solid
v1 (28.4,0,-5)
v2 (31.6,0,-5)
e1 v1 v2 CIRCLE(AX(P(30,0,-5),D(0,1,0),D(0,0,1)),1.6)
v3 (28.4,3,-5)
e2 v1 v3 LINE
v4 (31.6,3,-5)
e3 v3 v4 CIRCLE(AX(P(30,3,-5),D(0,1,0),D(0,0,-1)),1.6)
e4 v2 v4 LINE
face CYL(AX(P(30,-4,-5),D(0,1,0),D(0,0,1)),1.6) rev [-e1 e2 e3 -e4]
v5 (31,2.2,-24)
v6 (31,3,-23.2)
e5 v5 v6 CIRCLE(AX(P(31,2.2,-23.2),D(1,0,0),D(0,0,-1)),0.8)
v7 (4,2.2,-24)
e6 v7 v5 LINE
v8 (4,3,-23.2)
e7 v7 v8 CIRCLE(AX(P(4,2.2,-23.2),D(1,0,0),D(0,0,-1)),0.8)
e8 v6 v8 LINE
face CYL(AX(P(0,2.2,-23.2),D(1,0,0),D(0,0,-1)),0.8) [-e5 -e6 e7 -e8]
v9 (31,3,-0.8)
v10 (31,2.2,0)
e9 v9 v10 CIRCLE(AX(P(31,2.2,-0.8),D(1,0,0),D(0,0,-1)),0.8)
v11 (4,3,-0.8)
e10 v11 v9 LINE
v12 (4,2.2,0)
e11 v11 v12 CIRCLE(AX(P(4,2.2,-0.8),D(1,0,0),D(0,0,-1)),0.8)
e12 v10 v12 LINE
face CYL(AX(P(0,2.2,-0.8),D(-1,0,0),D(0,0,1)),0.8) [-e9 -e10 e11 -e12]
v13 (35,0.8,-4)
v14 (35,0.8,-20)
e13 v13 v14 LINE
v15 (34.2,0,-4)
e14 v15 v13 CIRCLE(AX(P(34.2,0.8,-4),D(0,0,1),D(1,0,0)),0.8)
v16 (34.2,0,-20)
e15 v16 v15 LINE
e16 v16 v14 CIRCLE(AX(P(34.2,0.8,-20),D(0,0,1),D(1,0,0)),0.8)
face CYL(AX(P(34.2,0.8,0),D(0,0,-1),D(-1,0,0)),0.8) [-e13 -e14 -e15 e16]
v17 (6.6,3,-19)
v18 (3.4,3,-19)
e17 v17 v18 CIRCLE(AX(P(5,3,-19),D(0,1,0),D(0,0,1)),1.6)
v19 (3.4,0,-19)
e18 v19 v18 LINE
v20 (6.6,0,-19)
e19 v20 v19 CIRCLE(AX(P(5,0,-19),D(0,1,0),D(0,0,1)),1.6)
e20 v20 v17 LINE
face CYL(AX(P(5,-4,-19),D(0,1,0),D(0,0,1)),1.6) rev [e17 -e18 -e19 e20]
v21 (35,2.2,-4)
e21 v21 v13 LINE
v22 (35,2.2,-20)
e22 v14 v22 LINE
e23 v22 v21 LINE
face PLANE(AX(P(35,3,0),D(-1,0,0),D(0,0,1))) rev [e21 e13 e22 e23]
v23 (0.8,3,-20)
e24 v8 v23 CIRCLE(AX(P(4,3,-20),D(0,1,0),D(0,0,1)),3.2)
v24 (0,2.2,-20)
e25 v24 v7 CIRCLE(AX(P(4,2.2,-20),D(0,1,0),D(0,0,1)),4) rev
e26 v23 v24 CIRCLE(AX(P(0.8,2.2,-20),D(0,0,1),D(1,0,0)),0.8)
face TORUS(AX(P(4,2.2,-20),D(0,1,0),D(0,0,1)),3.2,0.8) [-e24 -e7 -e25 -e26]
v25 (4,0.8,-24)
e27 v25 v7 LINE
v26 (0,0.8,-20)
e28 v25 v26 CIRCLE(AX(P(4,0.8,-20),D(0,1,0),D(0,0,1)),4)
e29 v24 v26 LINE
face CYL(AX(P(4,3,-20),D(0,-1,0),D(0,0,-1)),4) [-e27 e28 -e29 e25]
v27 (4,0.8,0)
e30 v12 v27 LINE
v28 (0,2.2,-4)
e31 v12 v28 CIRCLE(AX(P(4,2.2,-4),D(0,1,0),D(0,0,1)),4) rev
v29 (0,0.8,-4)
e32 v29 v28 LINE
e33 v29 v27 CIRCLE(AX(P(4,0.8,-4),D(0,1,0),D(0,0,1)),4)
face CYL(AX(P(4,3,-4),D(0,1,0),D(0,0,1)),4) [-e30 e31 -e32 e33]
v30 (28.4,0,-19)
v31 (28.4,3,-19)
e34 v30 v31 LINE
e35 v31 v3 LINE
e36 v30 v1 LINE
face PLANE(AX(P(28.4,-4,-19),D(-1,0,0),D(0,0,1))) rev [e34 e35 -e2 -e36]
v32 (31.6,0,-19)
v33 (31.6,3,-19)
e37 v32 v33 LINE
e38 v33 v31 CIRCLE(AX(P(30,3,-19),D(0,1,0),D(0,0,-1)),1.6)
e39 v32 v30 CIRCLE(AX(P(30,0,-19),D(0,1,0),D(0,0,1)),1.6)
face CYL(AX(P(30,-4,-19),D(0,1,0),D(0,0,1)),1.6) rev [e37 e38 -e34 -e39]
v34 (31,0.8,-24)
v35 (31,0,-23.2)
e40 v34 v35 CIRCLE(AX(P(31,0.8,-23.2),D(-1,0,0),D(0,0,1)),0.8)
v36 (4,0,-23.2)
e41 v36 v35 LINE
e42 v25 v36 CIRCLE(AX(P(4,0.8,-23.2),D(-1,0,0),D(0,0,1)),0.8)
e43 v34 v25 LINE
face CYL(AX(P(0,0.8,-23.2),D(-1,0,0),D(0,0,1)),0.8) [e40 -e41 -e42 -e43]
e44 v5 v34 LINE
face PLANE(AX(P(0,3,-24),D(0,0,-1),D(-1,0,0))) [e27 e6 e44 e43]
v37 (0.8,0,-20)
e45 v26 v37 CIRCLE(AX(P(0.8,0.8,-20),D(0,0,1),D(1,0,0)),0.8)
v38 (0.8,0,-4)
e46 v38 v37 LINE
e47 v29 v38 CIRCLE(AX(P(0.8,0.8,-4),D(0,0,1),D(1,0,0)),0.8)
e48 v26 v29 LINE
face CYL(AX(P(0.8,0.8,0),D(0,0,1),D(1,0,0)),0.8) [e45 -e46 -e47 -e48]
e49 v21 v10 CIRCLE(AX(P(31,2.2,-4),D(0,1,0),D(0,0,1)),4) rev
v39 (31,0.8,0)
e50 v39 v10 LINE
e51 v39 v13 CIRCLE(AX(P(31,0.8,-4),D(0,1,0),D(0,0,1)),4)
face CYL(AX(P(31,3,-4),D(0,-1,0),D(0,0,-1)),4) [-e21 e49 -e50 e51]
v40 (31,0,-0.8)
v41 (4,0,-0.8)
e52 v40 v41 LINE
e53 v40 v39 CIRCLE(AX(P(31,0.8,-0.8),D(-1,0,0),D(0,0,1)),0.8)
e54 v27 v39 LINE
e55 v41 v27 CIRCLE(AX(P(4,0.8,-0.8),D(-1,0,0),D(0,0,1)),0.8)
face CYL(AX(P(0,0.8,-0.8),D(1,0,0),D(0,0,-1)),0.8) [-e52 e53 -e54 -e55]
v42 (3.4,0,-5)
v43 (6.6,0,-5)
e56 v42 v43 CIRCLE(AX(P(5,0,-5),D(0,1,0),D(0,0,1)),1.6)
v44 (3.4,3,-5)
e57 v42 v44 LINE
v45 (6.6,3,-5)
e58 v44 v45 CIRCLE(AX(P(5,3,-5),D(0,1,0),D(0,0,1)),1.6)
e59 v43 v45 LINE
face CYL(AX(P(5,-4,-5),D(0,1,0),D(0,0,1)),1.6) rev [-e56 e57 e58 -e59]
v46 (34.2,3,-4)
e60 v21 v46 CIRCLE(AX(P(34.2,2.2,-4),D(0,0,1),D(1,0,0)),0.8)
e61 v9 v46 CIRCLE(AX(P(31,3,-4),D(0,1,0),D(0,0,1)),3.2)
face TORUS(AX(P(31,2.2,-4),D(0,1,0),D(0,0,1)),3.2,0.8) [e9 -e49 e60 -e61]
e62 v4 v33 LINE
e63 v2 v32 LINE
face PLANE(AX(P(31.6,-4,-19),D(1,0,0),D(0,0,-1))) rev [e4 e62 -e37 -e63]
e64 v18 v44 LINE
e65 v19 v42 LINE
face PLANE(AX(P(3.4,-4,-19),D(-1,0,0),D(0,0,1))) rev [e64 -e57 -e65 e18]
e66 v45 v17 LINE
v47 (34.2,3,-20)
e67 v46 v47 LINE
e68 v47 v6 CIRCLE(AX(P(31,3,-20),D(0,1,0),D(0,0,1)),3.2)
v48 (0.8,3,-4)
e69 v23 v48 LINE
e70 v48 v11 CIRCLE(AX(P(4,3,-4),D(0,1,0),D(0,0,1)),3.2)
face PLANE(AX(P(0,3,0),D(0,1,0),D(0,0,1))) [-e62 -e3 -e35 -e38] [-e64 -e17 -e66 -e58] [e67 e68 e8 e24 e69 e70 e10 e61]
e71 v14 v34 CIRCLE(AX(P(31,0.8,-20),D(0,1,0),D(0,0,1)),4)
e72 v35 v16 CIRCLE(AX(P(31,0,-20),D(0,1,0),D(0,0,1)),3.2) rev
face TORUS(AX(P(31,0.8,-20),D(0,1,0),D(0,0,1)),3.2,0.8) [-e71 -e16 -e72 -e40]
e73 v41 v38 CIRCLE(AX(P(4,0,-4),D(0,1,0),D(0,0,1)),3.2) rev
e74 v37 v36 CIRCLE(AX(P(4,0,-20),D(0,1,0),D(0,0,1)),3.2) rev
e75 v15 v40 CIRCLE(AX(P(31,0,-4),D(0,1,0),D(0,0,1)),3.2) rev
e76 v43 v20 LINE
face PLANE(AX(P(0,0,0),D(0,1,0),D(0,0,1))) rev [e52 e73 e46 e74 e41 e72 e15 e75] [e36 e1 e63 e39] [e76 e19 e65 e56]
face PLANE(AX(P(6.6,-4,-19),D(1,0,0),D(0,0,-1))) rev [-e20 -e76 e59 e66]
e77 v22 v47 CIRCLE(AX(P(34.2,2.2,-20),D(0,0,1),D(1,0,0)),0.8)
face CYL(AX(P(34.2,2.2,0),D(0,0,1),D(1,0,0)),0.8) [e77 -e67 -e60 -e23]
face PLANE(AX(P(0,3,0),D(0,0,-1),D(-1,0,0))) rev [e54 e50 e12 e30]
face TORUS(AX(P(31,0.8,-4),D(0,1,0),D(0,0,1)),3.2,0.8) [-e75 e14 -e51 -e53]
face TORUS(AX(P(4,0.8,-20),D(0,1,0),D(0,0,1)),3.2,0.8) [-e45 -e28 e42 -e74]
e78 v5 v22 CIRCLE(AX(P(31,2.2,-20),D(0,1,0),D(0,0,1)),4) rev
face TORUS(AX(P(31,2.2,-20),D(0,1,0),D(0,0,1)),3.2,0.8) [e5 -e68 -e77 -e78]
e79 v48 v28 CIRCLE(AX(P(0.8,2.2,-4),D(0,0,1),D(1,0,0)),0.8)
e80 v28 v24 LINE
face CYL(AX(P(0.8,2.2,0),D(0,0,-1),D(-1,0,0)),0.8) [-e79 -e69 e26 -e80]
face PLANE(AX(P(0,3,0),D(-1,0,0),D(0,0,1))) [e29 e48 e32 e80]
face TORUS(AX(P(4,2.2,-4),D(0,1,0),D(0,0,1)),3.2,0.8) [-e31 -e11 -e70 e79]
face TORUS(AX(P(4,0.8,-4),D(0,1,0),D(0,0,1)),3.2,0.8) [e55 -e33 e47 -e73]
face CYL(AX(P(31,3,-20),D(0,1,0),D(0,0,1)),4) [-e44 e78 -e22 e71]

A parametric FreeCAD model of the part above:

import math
import FreeCAD as App
import Part
import Sketcher

V = App.Vector


def edges_at(feature, points):
    """Names of the edges that pass closest to the given points."""
    edges = feature.Shape.Edges
    near = lambda p: min(range(len(edges)), key=lambda i: edges[i].distToShape(Part.Vertex(*p))[0])
    return sorted({f"Edge{near(p) + 1}" for p in points})

doc = App.newDocument("Part")
body = doc.addObject("PartDesign::Body", "Body")

# Sketch on XZ plane
sketch1 = body.newObject("Sketcher::SketchObject", "Sketch")
sketch1.AttachmentSupport = (doc.getObject("XZ_Plane"), [""])
sketch1.MapMode = "FlatFace"
sketch1.addGeometry([
    Part.LineSegment(V(0, -24, 0), V(0, 0, 0)),
    Part.LineSegment(V(0, 0, 0), V(35, 0, 0)),
    Part.LineSegment(V(35, 0, 0), V(35, -24, 0)),
    Part.LineSegment(V(35, -24, 0), V(0, -24, 0)),
], False)
sketch1.addConstraint([
    Sketcher.Constraint("Coincident", 0, 2, 1, 1),
    Sketcher.Constraint("Coincident", 1, 2, 2, 1),
    Sketcher.Constraint("Coincident", 2, 2, 3, 1),
    Sketcher.Constraint("Coincident", 3, 2, 0, 1),
    Sketcher.Constraint("Vertical", 0),
    Sketcher.Constraint("Horizontal", 1),
    Sketcher.Constraint("Vertical", 2),
    Sketcher.Constraint("Horizontal", 3),
    Sketcher.Constraint("Coincident", 0, 2, -1, 1),
    Sketcher.Constraint("DistanceX", 1, 1, 1, 2, 35.0),
    Sketcher.Constraint("DistanceY", 0, 1, 0, 2, 24.0),
])
pad1 = body.newObject("PartDesign::Pad", "Pad")
pad1.Profile = sketch1
pad1.Length = 3
pad1.Reversed = True

# Sketch on XZ plane
sketch2 = body.newObject("Sketcher::SketchObject", "Sketch001")
sketch2.AttachmentSupport = (doc.getObject("XZ_Plane"), [""])
sketch2.MapMode = "FlatFace"
sketch2.AttachmentOffset = App.Placement(V(0, 0, -3), App.Rotation())
sketch2.addGeometry([
    Part.LineSegment(V(6.6, -5, 0), V(6.6, -19, 0)),  # 0
    Part.ArcOfCircle(Part.Circle(V(5, -19, 0), V(0, 0, 1), 1.6), math.radians(180), math.radians(360)),  # 1
    Part.LineSegment(V(3.4, -19, 0), V(3.4, -5, 0)),  # 2
    Part.ArcOfCircle(Part.Circle(V(5, -5, 0), V(0, 0, 1), 1.6), math.radians(0), math.radians(180)),  # 3
    Part.LineSegment(V(28.4, -19, 0), V(28.4, -5, 0)),  # 4
    Part.ArcOfCircle(Part.Circle(V(30, -5, 0), V(0, 0, 1), 1.6), math.radians(0), math.radians(180)),  # 5
    Part.LineSegment(V(31.6, -5, 0), V(31.6, -19, 0)),  # 6
    Part.ArcOfCircle(Part.Circle(V(30, -19, 0), V(0, 0, 1), 1.6), math.radians(180), math.radians(360)),  # 7
], False)
sketch2.addConstraint([
    Sketcher.Constraint("Tangent", 0, 2, 1, 2),
    Sketcher.Constraint("Tangent", 1, 1, 2, 1),
    Sketcher.Constraint("Tangent", 2, 2, 3, 2),
    Sketcher.Constraint("Tangent", 3, 1, 0, 1),
    Sketcher.Constraint("Tangent", 4, 2, 5, 2),
    Sketcher.Constraint("Tangent", 5, 1, 6, 1),
    Sketcher.Constraint("Tangent", 6, 2, 7, 2),
    Sketcher.Constraint("Tangent", 7, 1, 4, 1),
    Sketcher.Constraint("Vertical", 0),
    Sketcher.Constraint("Vertical", 2),
    Sketcher.Constraint("Vertical", 4),
    Sketcher.Constraint("Vertical", 6),
    Sketcher.Constraint("Equal", 3, 5),
    Sketcher.Constraint("Horizontal", 3, 3, 5, 3),
    Sketcher.Constraint("Horizontal", 1, 3, 7, 3),
    Sketcher.Constraint("Radius", 1, 1.6),
    Sketcher.Constraint("DistanceY", 0, 2, 0, 1, 14.0),
    Sketcher.Constraint("DistanceX", -1, 1, 1, 3, 5.0),
    Sketcher.Constraint("DistanceY", 1, 3, -1, 1, 19.0),
    Sketcher.Constraint("DistanceX", -1, 1, 5, 3, 30.0),
])
pocket1 = body.newObject("PartDesign::Pocket", "Pocket")
pocket1.Profile = sketch2
pocket1.Length = 7
pocket1.Reversed = True
doc.recompute()

fillet = body.newObject("PartDesign::Fillet", "Fillet")
fillet.Base = (pocket1, edges_at(pocket1, [
    (0, 1.5, 0),
    (0, 1.5, -24),
    (35, 1.5, -24),
    (35, 1.5, 0),
]))
fillet.Radius = 4
doc.recompute()

fillet2 = body.newObject("PartDesign::Fillet", "Fillet001")
fillet2.Base = (fillet, edges_at(fillet, [
    (0, 0, -12),
    (0, 3, -12),
    (17.5, 0, 0),
    (17.5, 0, -24),
    (35, 0, -12),
    (33.828, 0, -22.828),
    (33.828, 0, -1.172),
    (1.172, 0, -1.172),
    (1.172, 0, -22.828),
    (17.5, 3, -24),
    (17.5, 3, 0),
    (35, 3, -12),
    (33.828, 3, -22.828),
    (33.828, 3, -1.172),
    (1.172, 3, -1.172),
    (1.172, 3, -22.828),
]))
fillet2.Radius = 0.8

doc.recompute()
